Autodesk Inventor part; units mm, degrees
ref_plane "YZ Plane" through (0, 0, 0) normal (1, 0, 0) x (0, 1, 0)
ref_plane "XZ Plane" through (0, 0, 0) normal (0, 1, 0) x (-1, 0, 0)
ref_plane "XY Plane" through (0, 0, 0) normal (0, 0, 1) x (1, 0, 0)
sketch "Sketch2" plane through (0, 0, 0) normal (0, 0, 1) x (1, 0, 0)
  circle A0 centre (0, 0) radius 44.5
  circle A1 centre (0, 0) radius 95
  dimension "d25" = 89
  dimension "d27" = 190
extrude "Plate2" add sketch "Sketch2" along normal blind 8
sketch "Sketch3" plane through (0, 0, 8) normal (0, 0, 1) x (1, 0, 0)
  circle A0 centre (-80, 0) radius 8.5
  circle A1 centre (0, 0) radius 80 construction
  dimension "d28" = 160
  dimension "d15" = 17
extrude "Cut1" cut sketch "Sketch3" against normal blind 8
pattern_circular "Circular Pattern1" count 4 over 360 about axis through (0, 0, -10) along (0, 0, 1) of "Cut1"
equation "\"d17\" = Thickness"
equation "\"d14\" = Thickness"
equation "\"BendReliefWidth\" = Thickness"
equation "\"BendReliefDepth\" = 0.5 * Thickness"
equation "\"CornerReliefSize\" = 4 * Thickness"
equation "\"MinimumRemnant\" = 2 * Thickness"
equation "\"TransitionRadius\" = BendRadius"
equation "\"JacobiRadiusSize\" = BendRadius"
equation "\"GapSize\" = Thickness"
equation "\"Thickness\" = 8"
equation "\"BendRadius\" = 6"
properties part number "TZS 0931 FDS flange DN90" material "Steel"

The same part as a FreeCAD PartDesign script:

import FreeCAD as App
import Part
import Sketcher

doc = App.newDocument("Part")
body = doc.addObject("PartDesign::Body", "Body")

# Sketch on XY plane
sketch1 = doc.addObject("Sketcher::SketchObject", "Sketch")
body.addObject(sketch1)
sketch1.AttachmentSupport = (doc.XY_Plane, [""])
sketch1.MapMode = "FlatFace"
sketch1.addGeometry([
    Part.Circle(App.Vector(0, 0, 0), App.Vector(0, 0, 1), 95),
    Part.Circle(App.Vector(0, 0, 0), App.Vector(0, 0, 1), 44),
], False)
sketch1.addConstraint([
    Sketcher.Constraint("Coincident", 0, 3, -1, 1),
    Sketcher.Constraint("Coincident", 1, 3, -1, 1),
    Sketcher.Constraint("Diameter", 0, 190.0),
    Sketcher.Constraint("Diameter", 1, 89.0),
])
pad1 = doc.addObject("PartDesign::Pad", "Pad")
body.addObject(pad1)
pad1.Profile = sketch1
pad1.Length = 8

# Sketch on XY plane
sketch2 = doc.addObject("Sketcher::SketchObject", "Sketch001")
body.addObject(sketch2)
sketch2.AttachmentSupport = (doc.XY_Plane, [""])
sketch2.MapMode = "FlatFace"
sketch2.AttachmentOffset = App.Placement(App.Vector(0, 0, 8), App.Rotation())
sketch2.addGeometry(Part.Circle(App.Vector(-80, 0, 0), App.Vector(0, 0, 1), 8), False)
sketch2.addConstraint([
    Sketcher.Constraint("PointOnObject", 0, 3, -1),
    Sketcher.Constraint("Diameter", 0, 17.0),
    Sketcher.Constraint("DistanceX", 0, 3, -1, 1, 80.0),
])
pocket1 = doc.addObject("PartDesign::Pocket", "Pocket")
body.addObject(pocket1)
pocket1.Profile = sketch2
pocket1.Length = 8
doc.recompute()

polarpattern = doc.addObject("PartDesign::PolarPattern", "PolarPattern")
body.addObject(polarpattern)
polarpattern.Originals = [pocket1]
polarpattern.Axis = (doc.Z_Axis, [""])
polarpattern.Angle = 360
polarpattern.Occurrences = 4
body.Tip = polarpattern

doc.recompute()
